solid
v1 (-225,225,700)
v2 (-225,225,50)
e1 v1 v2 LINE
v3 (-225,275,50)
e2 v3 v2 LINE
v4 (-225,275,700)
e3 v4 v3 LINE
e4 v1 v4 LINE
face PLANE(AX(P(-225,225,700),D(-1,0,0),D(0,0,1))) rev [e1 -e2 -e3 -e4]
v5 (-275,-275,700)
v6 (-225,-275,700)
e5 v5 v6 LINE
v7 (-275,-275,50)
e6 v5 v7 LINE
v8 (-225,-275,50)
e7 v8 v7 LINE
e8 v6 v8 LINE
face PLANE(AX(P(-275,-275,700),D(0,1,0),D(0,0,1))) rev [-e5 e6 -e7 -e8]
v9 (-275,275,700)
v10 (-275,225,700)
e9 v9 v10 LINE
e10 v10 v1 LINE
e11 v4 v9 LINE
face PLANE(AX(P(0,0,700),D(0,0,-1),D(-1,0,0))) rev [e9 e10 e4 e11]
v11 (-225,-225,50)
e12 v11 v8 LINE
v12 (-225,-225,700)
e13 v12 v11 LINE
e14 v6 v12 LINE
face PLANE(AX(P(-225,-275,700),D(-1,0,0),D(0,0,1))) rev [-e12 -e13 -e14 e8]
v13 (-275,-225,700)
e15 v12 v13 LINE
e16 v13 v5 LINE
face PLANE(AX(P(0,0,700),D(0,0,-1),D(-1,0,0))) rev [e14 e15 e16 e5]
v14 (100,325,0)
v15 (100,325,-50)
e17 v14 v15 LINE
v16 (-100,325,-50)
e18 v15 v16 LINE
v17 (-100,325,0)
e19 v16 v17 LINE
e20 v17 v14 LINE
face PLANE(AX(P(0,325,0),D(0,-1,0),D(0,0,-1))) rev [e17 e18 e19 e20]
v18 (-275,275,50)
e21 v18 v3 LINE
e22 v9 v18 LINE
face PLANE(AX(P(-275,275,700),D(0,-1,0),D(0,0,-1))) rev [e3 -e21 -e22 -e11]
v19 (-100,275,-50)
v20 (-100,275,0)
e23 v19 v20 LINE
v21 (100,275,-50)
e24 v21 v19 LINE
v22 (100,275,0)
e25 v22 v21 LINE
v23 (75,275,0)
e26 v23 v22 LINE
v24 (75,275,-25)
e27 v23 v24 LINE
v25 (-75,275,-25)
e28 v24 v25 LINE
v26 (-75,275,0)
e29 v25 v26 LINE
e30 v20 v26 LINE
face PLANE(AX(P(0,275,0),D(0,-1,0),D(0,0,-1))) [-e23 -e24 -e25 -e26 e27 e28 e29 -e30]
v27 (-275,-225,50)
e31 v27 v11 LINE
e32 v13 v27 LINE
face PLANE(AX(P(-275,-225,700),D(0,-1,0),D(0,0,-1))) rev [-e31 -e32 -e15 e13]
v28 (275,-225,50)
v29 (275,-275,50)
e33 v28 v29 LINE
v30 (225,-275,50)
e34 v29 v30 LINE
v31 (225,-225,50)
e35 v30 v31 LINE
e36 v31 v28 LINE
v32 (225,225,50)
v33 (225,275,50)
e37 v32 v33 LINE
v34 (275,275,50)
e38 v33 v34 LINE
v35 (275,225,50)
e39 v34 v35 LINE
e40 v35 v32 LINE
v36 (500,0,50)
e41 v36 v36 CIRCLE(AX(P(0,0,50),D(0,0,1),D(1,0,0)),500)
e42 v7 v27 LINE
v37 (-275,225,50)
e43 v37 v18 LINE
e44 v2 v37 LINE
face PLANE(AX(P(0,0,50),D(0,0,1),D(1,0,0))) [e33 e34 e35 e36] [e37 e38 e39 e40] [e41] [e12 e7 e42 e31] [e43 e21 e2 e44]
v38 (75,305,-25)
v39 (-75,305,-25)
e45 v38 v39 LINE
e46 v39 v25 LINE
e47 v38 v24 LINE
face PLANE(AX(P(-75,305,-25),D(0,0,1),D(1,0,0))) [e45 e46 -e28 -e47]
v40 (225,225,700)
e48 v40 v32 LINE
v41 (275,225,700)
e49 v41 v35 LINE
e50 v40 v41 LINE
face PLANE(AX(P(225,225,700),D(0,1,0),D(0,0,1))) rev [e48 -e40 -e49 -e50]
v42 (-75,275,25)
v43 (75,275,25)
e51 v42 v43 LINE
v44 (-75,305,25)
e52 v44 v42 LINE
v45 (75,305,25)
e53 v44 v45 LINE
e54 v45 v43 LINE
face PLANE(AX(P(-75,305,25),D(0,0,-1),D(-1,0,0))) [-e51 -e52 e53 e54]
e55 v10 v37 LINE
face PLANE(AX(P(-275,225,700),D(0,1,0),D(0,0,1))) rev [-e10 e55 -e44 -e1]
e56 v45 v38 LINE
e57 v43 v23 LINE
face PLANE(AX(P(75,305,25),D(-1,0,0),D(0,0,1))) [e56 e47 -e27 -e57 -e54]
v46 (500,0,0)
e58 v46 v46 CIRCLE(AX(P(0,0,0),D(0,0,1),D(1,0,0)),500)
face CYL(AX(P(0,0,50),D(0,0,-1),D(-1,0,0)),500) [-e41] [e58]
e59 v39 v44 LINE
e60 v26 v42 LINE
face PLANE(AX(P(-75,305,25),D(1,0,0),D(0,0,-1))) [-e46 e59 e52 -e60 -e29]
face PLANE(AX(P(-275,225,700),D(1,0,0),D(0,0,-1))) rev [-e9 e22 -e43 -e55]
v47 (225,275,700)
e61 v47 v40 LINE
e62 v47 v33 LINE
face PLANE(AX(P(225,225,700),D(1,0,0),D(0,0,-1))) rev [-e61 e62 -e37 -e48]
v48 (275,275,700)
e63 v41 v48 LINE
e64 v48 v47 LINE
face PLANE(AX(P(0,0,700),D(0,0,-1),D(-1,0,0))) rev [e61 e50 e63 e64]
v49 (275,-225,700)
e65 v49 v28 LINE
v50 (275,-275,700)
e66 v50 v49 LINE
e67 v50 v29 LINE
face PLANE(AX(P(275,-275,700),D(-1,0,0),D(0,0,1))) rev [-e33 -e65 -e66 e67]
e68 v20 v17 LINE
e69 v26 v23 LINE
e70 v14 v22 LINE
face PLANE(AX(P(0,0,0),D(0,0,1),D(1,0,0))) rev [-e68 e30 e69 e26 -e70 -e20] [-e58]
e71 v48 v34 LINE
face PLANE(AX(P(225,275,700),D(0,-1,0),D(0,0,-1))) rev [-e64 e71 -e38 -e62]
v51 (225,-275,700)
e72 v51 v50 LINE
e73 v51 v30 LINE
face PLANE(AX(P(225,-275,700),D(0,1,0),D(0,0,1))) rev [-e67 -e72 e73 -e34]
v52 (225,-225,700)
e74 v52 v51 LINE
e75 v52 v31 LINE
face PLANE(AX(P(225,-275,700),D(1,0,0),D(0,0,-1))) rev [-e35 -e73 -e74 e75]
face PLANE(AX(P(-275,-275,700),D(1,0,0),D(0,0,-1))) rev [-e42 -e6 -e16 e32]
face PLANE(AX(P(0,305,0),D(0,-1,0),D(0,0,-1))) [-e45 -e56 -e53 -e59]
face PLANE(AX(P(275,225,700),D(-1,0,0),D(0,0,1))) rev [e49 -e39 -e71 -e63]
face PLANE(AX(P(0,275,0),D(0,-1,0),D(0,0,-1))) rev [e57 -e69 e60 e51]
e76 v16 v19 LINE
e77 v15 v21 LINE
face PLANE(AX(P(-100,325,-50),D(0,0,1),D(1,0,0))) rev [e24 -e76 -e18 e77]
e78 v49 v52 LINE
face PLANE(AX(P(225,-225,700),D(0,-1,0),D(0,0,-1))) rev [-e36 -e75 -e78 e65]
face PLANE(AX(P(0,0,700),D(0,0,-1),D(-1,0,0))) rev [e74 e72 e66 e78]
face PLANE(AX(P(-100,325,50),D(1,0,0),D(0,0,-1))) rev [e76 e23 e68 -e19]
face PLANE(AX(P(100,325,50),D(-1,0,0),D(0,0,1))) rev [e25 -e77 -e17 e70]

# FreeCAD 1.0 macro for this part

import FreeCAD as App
import Part
import Sketcher
from FreeCAD import Vector

doc = App.newDocument("Part")
params = doc.addObject("Spreadsheet::Sheet", "Params")
for row, (alias, value) in enumerate([
    ("sketch1_diameter", "1000 mm"),
    ("pad1_length", "50 mm"),
    ("sketch2_width", "50 mm"),
    ("pad2_length", "700 mm"),
    ("sketch3_width", "50 mm"),
    ("pad3_length", "700 mm"),
    ("sketch4_width", "50 mm"),
    ("pad4_length", "700 mm"),
    ("sketch5_width", "50 mm"),
    ("pad5_length", "700 mm"),
    ("sketch6_width", "200 mm"),
    ("sketch6_height", "100 mm"),
    ("pad6_length", "50 mm"),
    ("sketch7_width", "150 mm"),
    ("sketch7_height", "50 mm"),
    ("pocket1_length", "30 mm"),
], start=1):
    params.set(f"A{row}", alias)
    params.set(f"B{row}", "=" + value)
    params.setAlias(f"B{row}", alias)

body = doc.addObject("PartDesign::Body", "Body")

# Sketch on XY plane
sketch1 = body.newObject("Sketcher::SketchObject", "Sketch")
sketch1.AttachmentSupport = (doc.getObject("XY_Plane"), [""])
sketch1.MapMode = "FlatFace"
sketch1.addGeometry(Part.Circle(Vector(0, 0, 0), Vector(0, 0, 1), 500), False)
sketch1.addConstraint([
    Sketcher.Constraint("Coincident", 0, 3, -1, 1),
    Sketcher.Constraint("Diameter", 0, 1000.0),
])
sketch1.setExpression("Constraints[1]", "Params.sketch1_diameter")
pad1 = body.newObject("PartDesign::Pad", "Pad")
pad1.Profile = sketch1
pad1.setExpression("Length", "Params.pad1_length")

# Sketch on XY plane
sketch2 = body.newObject("Sketcher::SketchObject", "Sketch001")
sketch2.AttachmentSupport = (doc.getObject("XY_Plane"), [""])
sketch2.MapMode = "FlatFace"
sketch2.addGeometry([
    Part.LineSegment(Vector(225, 275, 0), Vector(225, 225, 0)),
    Part.LineSegment(Vector(225, 225, 0), Vector(275, 225, 0)),
    Part.LineSegment(Vector(275, 225, 0), Vector(275, 275, 0)),
    Part.LineSegment(Vector(275, 275, 0), Vector(225, 275, 0)),
], False)
sketch2.addConstraint([
    Sketcher.Constraint("Coincident", 0, 2, 1, 1),
    Sketcher.Constraint("Coincident", 1, 2, 2, 1),
    Sketcher.Constraint("Coincident", 2, 2, 3, 1),
    Sketcher.Constraint("Coincident", 3, 2, 0, 1),
    Sketcher.Constraint("Vertical", 0),
    Sketcher.Constraint("Horizontal", 1),
    Sketcher.Constraint("Vertical", 2),
    Sketcher.Constraint("Horizontal", 3),
    Sketcher.Constraint("Equal", 3, 0),
    Sketcher.Constraint("DistanceX", 1, 1, 1, 2, 50.0),
    Sketcher.Constraint("DistanceX", -1, 1, 0, 2, 225.0),
    Sketcher.Constraint("DistanceY", -1, 1, 0, 2, 225.0),
])
sketch2.setExpression("Constraints[9]", "Params.sketch2_width")
pad2 = body.newObject("PartDesign::Pad", "Pad001")
pad2.Profile = sketch2
pad2.setExpression("Length", "Params.pad2_length")

# Sketch on XY plane
sketch3 = body.newObject("Sketcher::SketchObject", "Sketch002")
sketch3.AttachmentSupport = (doc.getObject("XY_Plane"), [""])
sketch3.MapMode = "FlatFace"
sketch3.addGeometry([
    Part.LineSegment(Vector(-275, 275, 0), Vector(-275, 225, 0)),
    Part.LineSegment(Vector(-275, 225, 0), Vector(-225, 225, 0)),
    Part.LineSegment(Vector(-225, 225, 0), Vector(-225, 275, 0)),
    Part.LineSegment(Vector(-225, 275, 0), Vector(-275, 275, 0)),
], False)
sketch3.addConstraint([
    Sketcher.Constraint("Coincident", 0, 2, 1, 1),
    Sketcher.Constraint("Coincident", 1, 2, 2, 1),
    Sketcher.Constraint("Coincident", 2, 2, 3, 1),
    Sketcher.Constraint("Coincident", 3, 2, 0, 1),
    Sketcher.Constraint("Vertical", 0),
    Sketcher.Constraint("Horizontal", 1),
    Sketcher.Constraint("Vertical", 2),
    Sketcher.Constraint("Horizontal", 3),
    Sketcher.Constraint("Equal", 3, 0),
    Sketcher.Constraint("DistanceX", 1, 1, 1, 2, 50.0),
    Sketcher.Constraint("DistanceX", 0, 2, -1, 1, 275.0),
    Sketcher.Constraint("DistanceY", -1, 1, 0, 2, 225.0),
])
sketch3.setExpression("Constraints[9]", "Params.sketch3_width")
pad3 = body.newObject("PartDesign::Pad", "Pad002")
pad3.Profile = sketch3
pad3.setExpression("Length", "Params.pad3_length")

# Sketch on XY plane
sketch4 = body.newObject("Sketcher::SketchObject", "Sketch003")
sketch4.AttachmentSupport = (doc.getObject("XY_Plane"), [""])
sketch4.MapMode = "FlatFace"
sketch4.addGeometry([
    Part.LineSegment(Vector(225, -225, 0), Vector(225, -275, 0)),
    Part.LineSegment(Vector(225, -275, 0), Vector(275, -275, 0)),
    Part.LineSegment(Vector(275, -275, 0), Vector(275, -225, 0)),
    Part.LineSegment(Vector(275, -225, 0), Vector(225, -225, 0)),
], False)
sketch4.addConstraint([
    Sketcher.Constraint("Coincident", 0, 2, 1, 1),
    Sketcher.Constraint("Coincident", 1, 2, 2, 1),
    Sketcher.Constraint("Coincident", 2, 2, 3, 1),
    Sketcher.Constraint("Coincident", 3, 2, 0, 1),
    Sketcher.Constraint("Vertical", 0),
    Sketcher.Constraint("Horizontal", 1),
    Sketcher.Constraint("Vertical", 2),
    Sketcher.Constraint("Horizontal", 3),
    Sketcher.Constraint("Equal", 3, 0),
    Sketcher.Constraint("DistanceX", 1, 1, 1, 2, 50.0),
    Sketcher.Constraint("DistanceX", -1, 1, 0, 2, 225.0),
    Sketcher.Constraint("DistanceY", 0, 2, -1, 1, 275.0),
])
sketch4.setExpression("Constraints[9]", "Params.sketch4_width")
pad4 = body.newObject("PartDesign::Pad", "Pad003")
pad4.Profile = sketch4
pad4.setExpression("Length", "Params.pad4_length")

# Sketch on XY plane
sketch5 = body.newObject("Sketcher::SketchObject", "Sketch004")
sketch5.AttachmentSupport = (doc.getObject("XY_Plane"), [""])
sketch5.MapMode = "FlatFace"
sketch5.addGeometry([
    Part.LineSegment(Vector(-275, -225, 0), Vector(-275, -275, 0)),
    Part.LineSegment(Vector(-275, -275, 0), Vector(-225, -275, 0)),
    Part.LineSegment(Vector(-225, -275, 0), Vector(-225, -225, 0)),
    Part.LineSegment(Vector(-225, -225, 0), Vector(-275, -225, 0)),
], False)
sketch5.addConstraint([
    Sketcher.Constraint("Coincident", 0, 2, 1, 1),
    Sketcher.Constraint("Coincident", 1, 2, 2, 1),
    Sketcher.Constraint("Coincident", 2, 2, 3, 1),
    Sketcher.Constraint("Coincident", 3, 2, 0, 1),
    Sketcher.Constraint("Vertical", 0),
    Sketcher.Constraint("Horizontal", 1),
    Sketcher.Constraint("Vertical", 2),
    Sketcher.Constraint("Horizontal", 3),
    Sketcher.Constraint("Equal", 3, 0),
    Sketcher.Constraint("DistanceX", 1, 1, 1, 2, 50.0),
    Sketcher.Constraint("DistanceX", 0, 2, -1, 1, 275.0),
    Sketcher.Constraint("DistanceY", 0, 2, -1, 1, 275.0),
])
sketch5.setExpression("Constraints[9]", "Params.sketch5_width")
pad5 = body.newObject("PartDesign::Pad", "Pad004")
pad5.Profile = sketch5
pad5.setExpression("Length", "Params.pad5_length")

# Sketch on XZ plane
sketch6 = body.newObject("Sketcher::SketchObject", "Sketch005")
sketch6.AttachmentSupport = (doc.getObject("XZ_Plane"), [""])
sketch6.MapMode = "FlatFace"
sketch6.AttachmentOffset = App.Placement(Vector(0, 0, -275), App.Rotation())
sketch6.addGeometry([
    Part.LineSegment(Vector(-100, -50, 0), Vector(-100, 50, 0)),
    Part.LineSegment(Vector(-100, 50, 0), Vector(100, 50, 0)),
    Part.LineSegment(Vector(100, 50, 0), Vector(100, -50, 0)),
    Part.LineSegment(Vector(100, -50, 0), Vector(-100, -50, 0)),
], False)
sketch6.addConstraint([
    Sketcher.Constraint("Coincident", 0, 2, 1, 1),
    Sketcher.Constraint("Coincident", 1, 2, 2, 1),
    Sketcher.Constraint("Coincident", 2, 2, 3, 1),
    Sketcher.Constraint("Coincident", 3, 2, 0, 1),
    Sketcher.Constraint("Vertical", 0),
    Sketcher.Constraint("Horizontal", 1),
    Sketcher.Constraint("Vertical", 2),
    Sketcher.Constraint("Horizontal", 3),
    Sketcher.Constraint("Symmetric", 0, 2, 2, 2, -1, 1),
    Sketcher.Constraint("DistanceX", 1, 1, 1, 2, 200.0),
    Sketcher.Constraint("DistanceY", 0, 1, 0, 2, 100.0),
])
sketch6.setExpression("Constraints[9]", "Params.sketch6_width")
sketch6.setExpression("Constraints[10]", "Params.sketch6_height")
pad6 = body.newObject("PartDesign::Pad", "Pad005")
pad6.Profile = sketch6
pad6.setExpression("Length", "Params.pad6_length")
pad6.Reversed = True

# Sketch on XZ plane
sketch7 = body.newObject("Sketcher::SketchObject", "Sketch006")
sketch7.AttachmentSupport = (doc.getObject("XZ_Plane"), [""])
sketch7.MapMode = "FlatFace"
sketch7.AttachmentOffset = App.Placement(Vector(0, 0, -275), App.Rotation())
sketch7.addGeometry([
    Part.LineSegment(Vector(-75, -25, 0), Vector(-75, 25, 0)),
    Part.LineSegment(Vector(-75, 25, 0), Vector(75, 25, 0)),
    Part.LineSegment(Vector(75, 25, 0), Vector(75, -25, 0)),
    Part.LineSegment(Vector(75, -25, 0), Vector(-75, -25, 0)),
], False)
sketch7.addConstraint([
    Sketcher.Constraint("Coincident", 0, 2, 1, 1),
    Sketcher.Constraint("Coincident", 1, 2, 2, 1),
    Sketcher.Constraint("Coincident", 2, 2, 3, 1),
    Sketcher.Constraint("Coincident", 3, 2, 0, 1),
    Sketcher.Constraint("Vertical", 0),
    Sketcher.Constraint("Horizontal", 1),
    Sketcher.Constraint("Vertical", 2),
    Sketcher.Constraint("Horizontal", 3),
    Sketcher.Constraint("Symmetric", 0, 2, 2, 2, -1, 1),
    Sketcher.Constraint("DistanceX", 1, 1, 1, 2, 150.0),
    Sketcher.Constraint("DistanceY", 0, 1, 0, 2, 50.0),
])
sketch7.setExpression("Constraints[9]", "Params.sketch7_width")
sketch7.setExpression("Constraints[10]", "Params.sketch7_height")
pocket1 = body.newObject("PartDesign::Pocket", "Pocket")
pocket1.Profile = sketch7
pocket1.setExpression("Length", "Params.pocket1_length")

doc.recompute()
